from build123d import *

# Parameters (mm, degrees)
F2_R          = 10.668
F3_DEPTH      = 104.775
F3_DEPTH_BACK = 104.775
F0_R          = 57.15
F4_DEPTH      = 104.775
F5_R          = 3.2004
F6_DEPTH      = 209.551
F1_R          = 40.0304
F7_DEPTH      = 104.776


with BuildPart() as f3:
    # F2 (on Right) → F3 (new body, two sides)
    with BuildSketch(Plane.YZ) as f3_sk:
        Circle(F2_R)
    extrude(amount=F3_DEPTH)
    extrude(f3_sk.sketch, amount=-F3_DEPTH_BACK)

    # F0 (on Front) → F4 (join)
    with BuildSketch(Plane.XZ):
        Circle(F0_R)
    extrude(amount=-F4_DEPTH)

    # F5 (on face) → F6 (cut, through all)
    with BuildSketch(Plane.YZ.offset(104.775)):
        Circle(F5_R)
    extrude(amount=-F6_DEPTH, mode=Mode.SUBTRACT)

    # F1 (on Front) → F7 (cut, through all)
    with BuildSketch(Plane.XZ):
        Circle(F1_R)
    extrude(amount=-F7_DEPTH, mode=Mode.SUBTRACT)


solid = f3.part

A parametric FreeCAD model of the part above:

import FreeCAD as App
import Part
import Sketcher
from FreeCAD import Vector
Q = App.Units.Quantity

doc = App.newDocument("Part")
body = doc.addObject("PartDesign::Body", "Body")

sketch1 = doc.addObject("Sketcher::SketchObject", "Sketch")
body.addObject(sketch1)
sketch1.AttachmentSupport = (doc.YZ_Plane, [""])
sketch1.MapMode = "FlatFace"
sketch1.addGeometry(Part.Circle(Vector(0, 0, 0), Vector(0, 0, 1), 11), False)
sketch1.addConstraint([
    Sketcher.Constraint("Coincident", 0, 3, -1, 1),
    Sketcher.Constraint("Diameter", 0, Q("0.84 in")),
])
pad1 = doc.addObject("PartDesign::Pad", "Pad")
body.addObject(pad1)
pad1.Profile = sketch1
pad1.Type = "TwoLengths"
pad1.Length = Q("4.125 in")
pad1.Length2 = Q("4.125 in")

sketch2 = doc.addObject("Sketcher::SketchObject", "Sketch001")
body.addObject(sketch2)
sketch2.AttachmentSupport = (doc.XZ_Plane, [""])
sketch2.MapMode = "FlatFace"
sketch2.addGeometry(Part.Circle(Vector(0, 0, 0), Vector(0, 0, 1), 57), False)
sketch2.addConstraint([
    Sketcher.Constraint("Coincident", 0, 3, -1, 1),
    Sketcher.Constraint("Diameter", 0, Q("4.5 in")),
])
pad2 = doc.addObject("PartDesign::Pad", "Pad001")
body.addObject(pad2)
pad2.Profile = sketch2
pad2.Length = Q("4.125 in")
pad2.Reversed = True

sketch3 = doc.addObject("Sketcher::SketchObject", "Sketch002")
body.addObject(sketch3)
sketch3.AttachmentSupport = (doc.YZ_Plane, [""])
sketch3.MapMode = "FlatFace"
sketch3.AttachmentOffset = App.Placement(Vector(0, 0, 4.125 * 25.4), App.Rotation())
sketch3.addGeometry(Part.Circle(Vector(0, 0, 0), Vector(0, 0, 1), 3.2), False)
sketch3.addConstraint([
    Sketcher.Constraint("Coincident", 0, 3, -1, 1),
    Sketcher.Constraint("Diameter", 0, Q("0.252 in")),
])
pocket1 = doc.addObject("PartDesign::Pocket", "Pocket")
body.addObject(pocket1)
pocket1.Profile = sketch3
pocket1.Type = "ThroughAll"

sketch4 = doc.addObject("Sketcher::SketchObject", "Sketch003")
body.addObject(sketch4)
sketch4.AttachmentSupport = (doc.XZ_Plane, [""])
sketch4.MapMode = "FlatFace"
sketch4.addGeometry(Part.Circle(Vector(0, 0, 0), Vector(0, 0, 1), 40), False)
sketch4.addConstraint([
    Sketcher.Constraint("Coincident", 0, 3, -1, 1),
    Sketcher.Constraint("Diameter", 0, Q("3.152 in")),
])
pocket2 = doc.addObject("PartDesign::Pocket", "Pocket001")
body.addObject(pocket2)
pocket2.Profile = sketch4
pocket2.Type = "ThroughAll"

doc.recompute()
